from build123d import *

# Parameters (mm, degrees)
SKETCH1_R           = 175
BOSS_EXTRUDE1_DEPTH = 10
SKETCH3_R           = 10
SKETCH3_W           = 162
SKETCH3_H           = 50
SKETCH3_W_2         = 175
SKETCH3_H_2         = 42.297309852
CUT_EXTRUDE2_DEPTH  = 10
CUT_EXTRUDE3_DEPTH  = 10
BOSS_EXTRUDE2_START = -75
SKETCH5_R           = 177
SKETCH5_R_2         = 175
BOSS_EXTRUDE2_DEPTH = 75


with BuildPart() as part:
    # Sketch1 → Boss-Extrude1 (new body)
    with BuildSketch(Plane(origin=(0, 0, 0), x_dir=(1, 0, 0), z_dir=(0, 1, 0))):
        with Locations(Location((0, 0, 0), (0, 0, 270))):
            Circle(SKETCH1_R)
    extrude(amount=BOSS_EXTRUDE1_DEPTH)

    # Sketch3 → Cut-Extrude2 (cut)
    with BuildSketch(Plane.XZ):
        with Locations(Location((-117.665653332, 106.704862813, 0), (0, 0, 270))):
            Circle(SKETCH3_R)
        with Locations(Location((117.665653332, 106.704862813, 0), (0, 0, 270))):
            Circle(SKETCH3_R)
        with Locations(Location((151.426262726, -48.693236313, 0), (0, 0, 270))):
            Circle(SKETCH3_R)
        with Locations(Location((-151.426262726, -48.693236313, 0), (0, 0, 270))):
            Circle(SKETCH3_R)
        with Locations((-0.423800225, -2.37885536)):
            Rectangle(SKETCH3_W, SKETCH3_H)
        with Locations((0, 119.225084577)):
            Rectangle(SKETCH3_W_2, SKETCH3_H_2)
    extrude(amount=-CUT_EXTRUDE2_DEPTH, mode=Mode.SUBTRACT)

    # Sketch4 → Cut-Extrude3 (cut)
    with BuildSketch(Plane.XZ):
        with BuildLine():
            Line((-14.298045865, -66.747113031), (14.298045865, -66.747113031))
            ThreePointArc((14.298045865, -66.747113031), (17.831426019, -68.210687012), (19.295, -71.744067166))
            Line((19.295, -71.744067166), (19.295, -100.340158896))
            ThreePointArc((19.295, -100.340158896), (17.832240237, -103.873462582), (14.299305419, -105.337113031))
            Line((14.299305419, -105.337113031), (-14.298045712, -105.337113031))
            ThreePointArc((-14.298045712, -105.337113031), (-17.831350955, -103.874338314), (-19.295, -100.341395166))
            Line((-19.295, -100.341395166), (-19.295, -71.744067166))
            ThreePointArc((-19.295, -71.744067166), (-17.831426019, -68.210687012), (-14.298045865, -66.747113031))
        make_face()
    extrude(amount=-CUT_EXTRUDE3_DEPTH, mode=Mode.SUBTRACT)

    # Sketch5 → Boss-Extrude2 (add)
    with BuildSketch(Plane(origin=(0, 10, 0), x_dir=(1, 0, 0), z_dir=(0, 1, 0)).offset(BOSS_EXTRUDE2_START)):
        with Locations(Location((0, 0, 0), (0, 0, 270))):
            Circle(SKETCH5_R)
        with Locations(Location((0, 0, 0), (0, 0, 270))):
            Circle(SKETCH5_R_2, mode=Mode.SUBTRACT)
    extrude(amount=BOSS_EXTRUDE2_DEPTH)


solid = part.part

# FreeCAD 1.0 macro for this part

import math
import FreeCAD as App
import Part
import Sketcher

V = App.Vector
Q = App.Units.Quantity

doc = App.newDocument("Part")
body = doc.addObject("PartDesign::Body", "Body")

# Sketch on XZ plane
sketch1 = body.newObject("Sketcher::SketchObject", "Sketch")
sketch1.AttachmentSupport = (doc.getObject("XZ_Plane"), [""])
sketch1.MapMode = "FlatFace"
sketch1.addGeometry(Part.Circle(V(0, 0, 0), V(0, 0, 1), 175), False)
sketch1.addConstraint(Sketcher.Constraint("Coincident", 0, 3, -1, 1))
sketch1.addConstraint(Sketcher.Constraint("Diameter", 0, Q("350 mm")))
pad1 = body.newObject("PartDesign::Pad", "Pad")
pad1.Profile = sketch1
pad1.Length = 10
pad1.Reversed = True

# Sketch on XZ plane
sketch2 = body.newObject("Sketcher::SketchObject", "Sketch001")
sketch2.AttachmentSupport = (doc.getObject("XZ_Plane"), [""])
sketch2.MapMode = "FlatFace"
sketch2.addGeometry(Part.Circle(V(-118, 107, 0), V(0, 0, 1), 10), False)
sketch2.addGeometry(Part.Circle(V(118, 107, 0), V(0, 0, 1), 10), False)
sketch2.addGeometry(Part.Circle(V(151, -49, 0), V(0, 0, 1), 10), False)
sketch2.addGeometry(Part.Circle(V(-151, -49, 0), V(0, 0, 1), 10), False)
sketch2.addGeometry(Part.LineSegment(V(-81, 23, 0), V(-81, -27, 0)), False)
sketch2.addGeometry(Part.LineSegment(V(-81, -27, 0), V(81, -27, 0)), False)
sketch2.addGeometry(Part.LineSegment(V(81, -27, 0), V(81, 23, 0)), False)
sketch2.addGeometry(Part.LineSegment(V(81, 23, 0), V(-81, 23, 0)), False)
sketch2.addGeometry(Part.LineSegment(V(-88, 140, 0), V(-88, 98, 0)), False)
sketch2.addGeometry(Part.LineSegment(V(-88, 98, 0), V(88, 98, 0)), False)
sketch2.addGeometry(Part.LineSegment(V(88, 98, 0), V(88, 140, 0)), False)
sketch2.addGeometry(Part.LineSegment(V(88, 140, 0), V(-88, 140, 0)), False)
sketch2.addConstraint(Sketcher.Constraint("Coincident", 4, 2, 5, 1))
sketch2.addConstraint(Sketcher.Constraint("Coincident", 5, 2, 6, 1))
sketch2.addConstraint(Sketcher.Constraint("Coincident", 6, 2, 7, 1))
sketch2.addConstraint(Sketcher.Constraint("Coincident", 7, 2, 4, 1))
sketch2.addConstraint(Sketcher.Constraint("Coincident", 8, 2, 9, 1))
sketch2.addConstraint(Sketcher.Constraint("Coincident", 9, 2, 10, 1))
sketch2.addConstraint(Sketcher.Constraint("Coincident", 10, 2, 11, 1))
sketch2.addConstraint(Sketcher.Constraint("Coincident", 11, 2, 8, 1))
sketch2.addConstraint(Sketcher.Constraint("Vertical", 4))
sketch2.addConstraint(Sketcher.Constraint("Horizontal", 5))
sketch2.addConstraint(Sketcher.Constraint("Vertical", 6))
sketch2.addConstraint(Sketcher.Constraint("Horizontal", 7))
sketch2.addConstraint(Sketcher.Constraint("Vertical", 8))
sketch2.addConstraint(Sketcher.Constraint("Horizontal", 9))
sketch2.addConstraint(Sketcher.Constraint("Vertical", 10))
sketch2.addConstraint(Sketcher.Constraint("Horizontal", 11))
sketch2.addConstraint(Sketcher.Constraint("Equal", 0, 1))
sketch2.addConstraint(Sketcher.Constraint("Equal", 1, 2))
sketch2.addConstraint(Sketcher.Constraint("Equal", 2, 3))
sketch2.addConstraint(Sketcher.Constraint("Symmetric", 0, 3, 1, 3, -2))
sketch2.addConstraint(Sketcher.Constraint("Symmetric", 2, 3, 3, 3, -2))
sketch2.addConstraint(Sketcher.Constraint("Diameter", 0, Q("20 mm")))
sketch2.addConstraint(Sketcher.Constraint("DistanceX", 5, 1, 5, 2, Q("162 mm")))
sketch2.addConstraint(Sketcher.Constraint("DistanceX", 9, 1, 9, 2, Q("175 mm")))
sketch2.addConstraint(Sketcher.Constraint("DistanceY", 4, 2, 4, 1, Q("50 mm")))
sketch2.addConstraint(Sketcher.Constraint("DistanceX", 8, 2, -1, 1, Q("87.5 mm")))
sketch2.addConstraint(Sketcher.Constraint("DistanceY", 8, 2, 8, 1, Q("42.29731 mm")))
sketch2.addConstraint(Sketcher.Constraint("DistanceX", 4, 2, -1, 1, Q("81.4238 mm")))
sketch2.addConstraint(Sketcher.Constraint("DistanceY", 2, 3, 1, 3, Q("155.398099 mm")))
sketch2.addConstraint(Sketcher.Constraint("DistanceY", -1, 1, 8, 2, Q("98.07643 mm")))
sketch2.addConstraint(Sketcher.Constraint("DistanceX", 1, 3, 2, 3, Q("33.760609 mm")))
sketch2.addConstraint(Sketcher.Constraint("DistanceY", 3, 3, 4, 2, Q("21.314381 mm")))
sketch2.addConstraint(Sketcher.Constraint("DistanceX", 0, 3, -1, 1, Q("117.665653 mm")))
sketch2.addConstraint(Sketcher.Constraint("DistanceY", -1, 1, 0, 3, Q("106.704863 mm")))
pocket1 = body.newObject("PartDesign::Pocket", "Pocket")
pocket1.Profile = sketch2
pocket1.Length = 10

# Sketch on XZ plane
sketch3 = body.newObject("Sketcher::SketchObject", "Sketch002")
sketch3.AttachmentSupport = (doc.getObject("XZ_Plane"), [""])
sketch3.MapMode = "FlatFace"
sketch3.addGeometry(Part.LineSegment(V(14.3, -66.7, 0), V(-14.3, -66.7, 0)), False)
sketch3.addGeometry(Part.ArcOfCircle(Part.Circle(V(-14.3, -71.7, 0), V(0, 0, 1), 5), math.radians(90), math.radians(180)), False)
sketch3.addGeometry(Part.LineSegment(V(-19.3, -71.7, 0), V(-19.3, -100.3, 0)), False)
sketch3.addGeometry(Part.ArcOfCircle(Part.Circle(V(-14.3, -100.3, 0), V(0, 0, 1), 5), math.radians(180), math.radians(270)), False)
sketch3.addGeometry(Part.LineSegment(V(-14.3, -105.3, 0), V(14.3, -105.3, 0)), False)
sketch3.addGeometry(Part.ArcOfCircle(Part.Circle(V(14.3, -100.3, 0), V(0, 0, 1), 5), math.radians(-90), math.radians(0)), False)
sketch3.addGeometry(Part.LineSegment(V(19.3, -100.3, 0), V(19.3, -71.7, 0)), False)
sketch3.addGeometry(Part.ArcOfCircle(Part.Circle(V(14.3, -71.7, 0), V(0, 0, 1), 5), math.radians(0), math.radians(90)), False)
sketch3.addConstraint(Sketcher.Constraint("Tangent", 0, 2, 1, 1))
sketch3.addConstraint(Sketcher.Constraint("Tangent", 1, 2, 2, 1))
sketch3.addConstraint(Sketcher.Constraint("Tangent", 2, 2, 3, 1))
sketch3.addConstraint(Sketcher.Constraint("Coincident", 3, 2, 4, 1))
sketch3.addConstraint(Sketcher.Constraint("Tangent", 4, 2, 5, 1))
sketch3.addConstraint(Sketcher.Constraint("Coincident", 5, 2, 6, 1))
sketch3.addConstraint(Sketcher.Constraint("Tangent", 6, 2, 7, 1))
sketch3.addConstraint(Sketcher.Constraint("Tangent", 7, 2, 0, 1))
sketch3.addConstraint(Sketcher.Constraint("Horizontal", 0))
sketch3.addConstraint(Sketcher.Constraint("Vertical", 2))
sketch3.addConstraint(Sketcher.Constraint("Horizontal", 4))
sketch3.addConstraint(Sketcher.Constraint("Vertical", 6))
sketch3.addConstraint(Sketcher.Constraint("Equal", 1, 7))
sketch3.addConstraint(Sketcher.Constraint("Vertical", 0, 2, 3, 2))
sketch3.addConstraint(Sketcher.Constraint("Equal", 0, 6))
sketch3.addConstraint(Sketcher.Constraint("Radius", 3, Q("4.995718 mm")))
sketch3.addConstraint(Sketcher.Constraint("DistanceX", 1, 2, -1, 1, Q("19.295 mm")))
sketch3.addConstraint(Sketcher.Constraint("DistanceX", -1, 1, 5, 2, Q("19.295 mm")))
sketch3.addConstraint(Sketcher.Constraint("Radius", 1, Q("4.996954 mm")))
sketch3.addConstraint(Sketcher.Constraint("Radius", 5, Q("4.995695 mm")))
sketch3.addConstraint(Sketcher.Constraint("DistanceY", 2, 2, 2, 1, Q("28.597328 mm")))
sketch3.addConstraint(Sketcher.Constraint("DistanceY", 5, 3, -1, 1, Q("100.341418 mm")))
pocket2 = body.newObject("PartDesign::Pocket", "Pocket001")
pocket2.Profile = sketch3
pocket2.Length = 10

# Sketch on XZ plane
sketch4 = body.newObject("Sketcher::SketchObject", "Sketch003")
sketch4.AttachmentSupport = (doc.getObject("XZ_Plane"), [""])
sketch4.MapMode = "FlatFace"
sketch4.AttachmentOffset = App.Placement(V(0, 0, 65), App.Rotation())
sketch4.addGeometry(Part.Circle(V(0, 0, 0), V(0, 0, 1), 177), False)
sketch4.addGeometry(Part.Circle(V(0, 0, 0), V(0, 0, 1), 175), False)
sketch4.addConstraint(Sketcher.Constraint("Coincident", 0, 3, -1, 1))
sketch4.addConstraint(Sketcher.Constraint("Coincident", 1, 3, -1, 1))
sketch4.addConstraint(Sketcher.Constraint("Diameter", 0, Q("354 mm")))
sketch4.addConstraint(Sketcher.Constraint("Diameter", 1, Q("350 mm")))
pad2 = body.newObject("PartDesign::Pad", "Pad001")
pad2.Profile = sketch4
pad2.Length = 75
pad2.Reversed = True

doc.recompute()
